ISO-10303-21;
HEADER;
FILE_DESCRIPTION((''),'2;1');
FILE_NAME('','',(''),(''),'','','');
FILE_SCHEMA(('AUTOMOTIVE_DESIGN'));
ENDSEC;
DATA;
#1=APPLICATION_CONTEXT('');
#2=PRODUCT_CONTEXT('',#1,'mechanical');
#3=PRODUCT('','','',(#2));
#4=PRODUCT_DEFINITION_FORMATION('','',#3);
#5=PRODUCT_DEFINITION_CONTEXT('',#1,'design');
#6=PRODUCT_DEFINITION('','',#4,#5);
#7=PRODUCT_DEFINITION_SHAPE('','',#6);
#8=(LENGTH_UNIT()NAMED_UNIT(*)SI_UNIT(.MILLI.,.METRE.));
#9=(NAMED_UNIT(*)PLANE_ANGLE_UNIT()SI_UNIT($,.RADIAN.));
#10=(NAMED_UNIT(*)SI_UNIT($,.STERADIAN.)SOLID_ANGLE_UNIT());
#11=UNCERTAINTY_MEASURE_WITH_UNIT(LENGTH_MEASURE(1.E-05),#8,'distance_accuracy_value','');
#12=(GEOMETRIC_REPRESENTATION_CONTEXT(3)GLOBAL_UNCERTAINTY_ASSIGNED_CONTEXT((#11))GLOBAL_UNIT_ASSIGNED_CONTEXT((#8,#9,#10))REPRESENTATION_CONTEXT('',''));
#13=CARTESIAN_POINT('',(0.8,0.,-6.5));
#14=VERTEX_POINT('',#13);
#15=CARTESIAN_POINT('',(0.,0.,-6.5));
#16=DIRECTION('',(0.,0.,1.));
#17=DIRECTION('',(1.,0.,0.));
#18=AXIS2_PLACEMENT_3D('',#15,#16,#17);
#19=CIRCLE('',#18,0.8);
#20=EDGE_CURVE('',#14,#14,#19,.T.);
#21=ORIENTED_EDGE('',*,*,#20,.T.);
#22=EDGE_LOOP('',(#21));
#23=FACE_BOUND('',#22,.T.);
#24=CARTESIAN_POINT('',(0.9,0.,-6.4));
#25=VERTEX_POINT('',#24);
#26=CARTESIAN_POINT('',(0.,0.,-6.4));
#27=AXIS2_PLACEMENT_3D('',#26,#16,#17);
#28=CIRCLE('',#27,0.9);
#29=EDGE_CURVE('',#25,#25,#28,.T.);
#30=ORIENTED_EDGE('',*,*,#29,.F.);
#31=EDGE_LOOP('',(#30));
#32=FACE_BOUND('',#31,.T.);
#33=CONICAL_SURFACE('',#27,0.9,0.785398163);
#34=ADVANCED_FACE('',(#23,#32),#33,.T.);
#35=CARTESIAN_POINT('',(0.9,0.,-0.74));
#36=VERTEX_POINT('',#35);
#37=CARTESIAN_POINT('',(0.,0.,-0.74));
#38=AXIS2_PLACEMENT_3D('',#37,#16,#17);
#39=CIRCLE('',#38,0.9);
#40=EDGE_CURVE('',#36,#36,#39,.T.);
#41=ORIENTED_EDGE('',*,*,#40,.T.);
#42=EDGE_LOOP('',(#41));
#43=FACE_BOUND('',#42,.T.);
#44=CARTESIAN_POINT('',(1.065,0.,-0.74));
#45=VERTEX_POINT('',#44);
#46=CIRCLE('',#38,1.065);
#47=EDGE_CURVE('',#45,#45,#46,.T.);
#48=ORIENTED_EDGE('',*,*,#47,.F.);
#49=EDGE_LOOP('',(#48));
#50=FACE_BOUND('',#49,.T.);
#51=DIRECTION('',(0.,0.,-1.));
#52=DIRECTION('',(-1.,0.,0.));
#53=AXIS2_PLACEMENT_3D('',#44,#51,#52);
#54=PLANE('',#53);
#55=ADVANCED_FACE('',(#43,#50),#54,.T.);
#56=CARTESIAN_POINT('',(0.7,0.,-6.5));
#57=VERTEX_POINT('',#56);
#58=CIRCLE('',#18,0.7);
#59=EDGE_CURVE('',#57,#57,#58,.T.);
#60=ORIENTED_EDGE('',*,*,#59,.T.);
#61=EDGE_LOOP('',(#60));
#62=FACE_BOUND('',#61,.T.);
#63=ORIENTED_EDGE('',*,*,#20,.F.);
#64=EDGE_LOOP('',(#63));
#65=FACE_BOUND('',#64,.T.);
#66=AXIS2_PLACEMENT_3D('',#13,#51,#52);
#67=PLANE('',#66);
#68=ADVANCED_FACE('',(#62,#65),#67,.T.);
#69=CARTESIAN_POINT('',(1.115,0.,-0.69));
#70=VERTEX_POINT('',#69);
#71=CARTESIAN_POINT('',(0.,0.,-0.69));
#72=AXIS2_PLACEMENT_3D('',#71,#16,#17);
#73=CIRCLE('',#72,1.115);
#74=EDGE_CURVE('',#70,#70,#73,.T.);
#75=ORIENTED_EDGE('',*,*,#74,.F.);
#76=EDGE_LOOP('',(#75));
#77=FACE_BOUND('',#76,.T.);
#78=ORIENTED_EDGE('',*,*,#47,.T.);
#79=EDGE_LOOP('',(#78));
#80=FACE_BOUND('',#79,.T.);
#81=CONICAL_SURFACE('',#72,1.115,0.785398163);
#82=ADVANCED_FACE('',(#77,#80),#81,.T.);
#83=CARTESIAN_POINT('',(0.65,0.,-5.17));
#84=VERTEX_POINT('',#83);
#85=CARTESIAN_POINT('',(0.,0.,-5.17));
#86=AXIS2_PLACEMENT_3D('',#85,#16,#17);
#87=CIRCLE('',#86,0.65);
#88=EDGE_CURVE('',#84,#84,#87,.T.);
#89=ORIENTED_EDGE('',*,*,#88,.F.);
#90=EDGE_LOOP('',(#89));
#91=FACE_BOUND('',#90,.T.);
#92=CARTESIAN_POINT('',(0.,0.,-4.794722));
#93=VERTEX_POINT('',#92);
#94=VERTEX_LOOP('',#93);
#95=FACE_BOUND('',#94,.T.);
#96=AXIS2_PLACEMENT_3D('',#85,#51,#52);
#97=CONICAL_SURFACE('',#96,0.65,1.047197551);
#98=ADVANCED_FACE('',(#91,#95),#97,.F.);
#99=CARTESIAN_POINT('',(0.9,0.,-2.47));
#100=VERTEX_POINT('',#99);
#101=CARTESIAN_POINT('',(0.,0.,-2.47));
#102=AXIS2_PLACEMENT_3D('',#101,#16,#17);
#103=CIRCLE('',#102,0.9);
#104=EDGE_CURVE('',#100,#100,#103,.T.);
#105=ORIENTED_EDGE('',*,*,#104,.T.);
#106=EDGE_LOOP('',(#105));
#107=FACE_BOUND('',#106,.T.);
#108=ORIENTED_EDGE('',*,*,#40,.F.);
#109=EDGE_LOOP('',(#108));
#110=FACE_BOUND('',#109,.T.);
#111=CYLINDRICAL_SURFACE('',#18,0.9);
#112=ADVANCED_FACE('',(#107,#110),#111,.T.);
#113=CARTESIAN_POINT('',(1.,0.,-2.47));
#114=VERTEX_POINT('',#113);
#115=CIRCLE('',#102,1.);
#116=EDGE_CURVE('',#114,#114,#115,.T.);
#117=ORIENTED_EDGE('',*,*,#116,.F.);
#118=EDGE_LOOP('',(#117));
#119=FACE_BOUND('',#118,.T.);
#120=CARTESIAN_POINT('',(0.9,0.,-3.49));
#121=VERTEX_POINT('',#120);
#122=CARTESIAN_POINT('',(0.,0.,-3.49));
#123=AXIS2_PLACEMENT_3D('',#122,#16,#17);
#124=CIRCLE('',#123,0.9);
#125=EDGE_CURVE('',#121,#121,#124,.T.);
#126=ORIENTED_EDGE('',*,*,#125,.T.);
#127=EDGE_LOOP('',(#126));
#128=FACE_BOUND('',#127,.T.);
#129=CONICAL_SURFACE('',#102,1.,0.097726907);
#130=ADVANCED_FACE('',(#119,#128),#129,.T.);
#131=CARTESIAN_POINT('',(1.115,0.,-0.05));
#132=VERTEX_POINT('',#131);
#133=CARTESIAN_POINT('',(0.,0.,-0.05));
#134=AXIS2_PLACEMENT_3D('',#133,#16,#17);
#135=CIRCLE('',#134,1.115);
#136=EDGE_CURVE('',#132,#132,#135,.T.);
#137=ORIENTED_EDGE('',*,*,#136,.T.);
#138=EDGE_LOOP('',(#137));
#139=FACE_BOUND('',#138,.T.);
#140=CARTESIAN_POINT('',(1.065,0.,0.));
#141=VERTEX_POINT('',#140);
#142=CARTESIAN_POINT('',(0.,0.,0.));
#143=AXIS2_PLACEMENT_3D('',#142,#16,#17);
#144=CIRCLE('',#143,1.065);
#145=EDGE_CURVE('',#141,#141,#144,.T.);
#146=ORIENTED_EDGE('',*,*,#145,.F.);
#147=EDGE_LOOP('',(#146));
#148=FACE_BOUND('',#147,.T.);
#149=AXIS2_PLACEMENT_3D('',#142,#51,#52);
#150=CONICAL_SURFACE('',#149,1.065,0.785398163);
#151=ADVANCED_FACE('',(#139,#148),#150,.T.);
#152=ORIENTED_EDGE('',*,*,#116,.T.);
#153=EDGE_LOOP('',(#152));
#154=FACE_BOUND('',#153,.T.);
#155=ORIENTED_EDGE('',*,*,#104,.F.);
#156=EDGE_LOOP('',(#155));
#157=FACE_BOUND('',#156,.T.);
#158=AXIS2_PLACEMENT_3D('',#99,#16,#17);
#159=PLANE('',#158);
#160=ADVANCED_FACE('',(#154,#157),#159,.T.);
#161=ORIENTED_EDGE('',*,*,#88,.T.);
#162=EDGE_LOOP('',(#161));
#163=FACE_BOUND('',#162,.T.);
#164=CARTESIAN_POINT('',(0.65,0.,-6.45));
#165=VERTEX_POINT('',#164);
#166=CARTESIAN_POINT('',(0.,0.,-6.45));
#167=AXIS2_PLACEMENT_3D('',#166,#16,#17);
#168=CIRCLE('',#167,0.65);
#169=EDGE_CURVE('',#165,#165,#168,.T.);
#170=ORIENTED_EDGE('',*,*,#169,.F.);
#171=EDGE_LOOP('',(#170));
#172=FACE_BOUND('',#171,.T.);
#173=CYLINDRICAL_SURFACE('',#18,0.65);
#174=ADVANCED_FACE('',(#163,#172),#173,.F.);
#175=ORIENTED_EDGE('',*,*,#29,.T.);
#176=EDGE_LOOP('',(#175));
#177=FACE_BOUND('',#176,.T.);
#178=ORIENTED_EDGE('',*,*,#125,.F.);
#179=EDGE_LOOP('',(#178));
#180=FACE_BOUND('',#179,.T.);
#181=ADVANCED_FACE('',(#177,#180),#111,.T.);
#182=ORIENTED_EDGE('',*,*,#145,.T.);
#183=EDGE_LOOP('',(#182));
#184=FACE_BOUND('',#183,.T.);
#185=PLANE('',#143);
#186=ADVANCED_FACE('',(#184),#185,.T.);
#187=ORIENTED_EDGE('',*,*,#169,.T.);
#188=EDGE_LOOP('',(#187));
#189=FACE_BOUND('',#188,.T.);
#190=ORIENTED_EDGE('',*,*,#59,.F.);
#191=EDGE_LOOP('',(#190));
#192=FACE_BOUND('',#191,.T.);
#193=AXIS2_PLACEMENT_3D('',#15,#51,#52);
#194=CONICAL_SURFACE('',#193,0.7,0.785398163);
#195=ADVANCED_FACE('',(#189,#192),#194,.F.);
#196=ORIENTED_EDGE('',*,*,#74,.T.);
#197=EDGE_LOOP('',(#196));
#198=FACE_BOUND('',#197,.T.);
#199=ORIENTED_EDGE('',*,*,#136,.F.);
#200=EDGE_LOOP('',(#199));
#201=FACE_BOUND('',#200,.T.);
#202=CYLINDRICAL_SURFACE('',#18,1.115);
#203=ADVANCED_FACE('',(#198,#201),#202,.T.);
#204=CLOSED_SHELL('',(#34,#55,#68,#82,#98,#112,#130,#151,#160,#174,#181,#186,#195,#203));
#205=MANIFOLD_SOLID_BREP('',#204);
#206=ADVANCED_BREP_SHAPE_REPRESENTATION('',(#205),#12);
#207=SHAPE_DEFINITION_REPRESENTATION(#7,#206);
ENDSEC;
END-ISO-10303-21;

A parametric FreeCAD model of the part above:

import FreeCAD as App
import Part
import Sketcher
from FreeCAD import Vector
Q = App.Units.Quantity

doc = App.newDocument("Part")
params = doc.addObject("Spreadsheet::Sheet", "Params")
for row, (alias, value) in enumerate([
    ("sketch1_width", "0.1 mm"),
    ("sketch1_height", "0.64 mm"),
    ("sketch1_height2", "1.73 mm"),
    ("sketch1_height3", "2.91 mm"),
    ("sketch1_height4", "1.28 mm"),
    ("revolution_angle", "360 deg"),
], start=1):
    params.set(f"A{row}", alias)
    params.set(f"B{row}", "=" + value)
    params.setAlias(f"B{row}", alias)

body = doc.addObject("PartDesign::Body", "Body")

sketch1 = body.newObject("Sketcher::SketchObject", "Sketch")
sketch1.AttachmentSupport = (doc.getObject("XZ_Plane"), [""])
sketch1.MapMode = "FlatFace"
sketch1.addGeometry(Part.LineSegment(Vector(0.65, -5.17, 0), Vector(0, -4.79, 0)), False)
sketch1.addGeometry(Part.LineSegment(Vector(0, -4.79, 0), Vector(0, 0, 0)), False)
sketch1.addGeometry(Part.LineSegment(Vector(0, 0, 0), Vector(1.06, 0, 0)), False)
sketch1.addGeometry(Part.LineSegment(Vector(1.06, 0, 0), Vector(1.11, -0.05, 0)), False)
sketch1.addGeometry(Part.LineSegment(Vector(1.11, -0.05, 0), Vector(1.11, -0.69, 0)), False)
sketch1.addGeometry(Part.LineSegment(Vector(1.11, -0.69, 0), Vector(1.06, -0.74, 0)), False)
sketch1.addGeometry(Part.LineSegment(Vector(1.06, -0.74, 0), Vector(0.9, -0.74, 0)), False)
sketch1.addGeometry(Part.LineSegment(Vector(0.9, -0.74, 0), Vector(0.9, -2.47, 0)), False)
sketch1.addGeometry(Part.LineSegment(Vector(0.9, -2.47, 0), Vector(1, -2.47, 0)), False)
sketch1.addGeometry(Part.LineSegment(Vector(1, -2.47, 0), Vector(0.9, -3.49, 0)), False)
sketch1.addGeometry(Part.LineSegment(Vector(0.9, -3.49, 0), Vector(0.9, -6.4, 0)), False)
sketch1.addGeometry(Part.LineSegment(Vector(0.9, -6.4, 0), Vector(0.8, -6.5, 0)), False)
sketch1.addGeometry(Part.LineSegment(Vector(0.8, -6.5, 0), Vector(0.7, -6.5, 0)), False)
sketch1.addGeometry(Part.LineSegment(Vector(0.7, -6.5, 0), Vector(0.65, -6.45, 0)), False)
sketch1.addGeometry(Part.LineSegment(Vector(0.65, -6.45, 0), Vector(0.65, -5.17, 0)), False)
sketch1.addConstraint(Sketcher.Constraint("Coincident", 0, 2, 1, 1))
sketch1.addConstraint(Sketcher.Constraint("Coincident", 1, 2, 2, 1))
sketch1.addConstraint(Sketcher.Constraint("Coincident", 2, 2, 3, 1))
sketch1.addConstraint(Sketcher.Constraint("Coincident", 3, 2, 4, 1))
sketch1.addConstraint(Sketcher.Constraint("Coincident", 4, 2, 5, 1))
sketch1.addConstraint(Sketcher.Constraint("Coincident", 5, 2, 6, 1))
sketch1.addConstraint(Sketcher.Constraint("Coincident", 6, 2, 7, 1))
sketch1.addConstraint(Sketcher.Constraint("Coincident", 7, 2, 8, 1))
sketch1.addConstraint(Sketcher.Constraint("Coincident", 8, 2, 9, 1))
sketch1.addConstraint(Sketcher.Constraint("Coincident", 9, 2, 10, 1))
sketch1.addConstraint(Sketcher.Constraint("Coincident", 10, 2, 11, 1))
sketch1.addConstraint(Sketcher.Constraint("Coincident", 11, 2, 12, 1))
sketch1.addConstraint(Sketcher.Constraint("Coincident", 12, 2, 13, 1))
sketch1.addConstraint(Sketcher.Constraint("Coincident", 13, 2, 14, 1))
sketch1.addConstraint(Sketcher.Constraint("Coincident", 14, 2, 0, 1))
sketch1.addConstraint(Sketcher.Constraint("Vertical", 1))
sketch1.addConstraint(Sketcher.Constraint("Horizontal", 2))
sketch1.addConstraint(Sketcher.Constraint("Vertical", 4))
sketch1.addConstraint(Sketcher.Constraint("Horizontal", 6))
sketch1.addConstraint(Sketcher.Constraint("Vertical", 7))
sketch1.addConstraint(Sketcher.Constraint("Horizontal", 8))
sketch1.addConstraint(Sketcher.Constraint("Vertical", 10))
sketch1.addConstraint(Sketcher.Constraint("Horizontal", 12))
sketch1.addConstraint(Sketcher.Constraint("Vertical", 14))
sketch1.addConstraint(Sketcher.Constraint("Coincident", 1, 2, -1, 1))
sketch1.addConstraint(Sketcher.Constraint("Perpendicular", 3, 5))
sketch1.addConstraint(Sketcher.Constraint("Parallel", 5, 11))
sketch1.addConstraint(Sketcher.Constraint("Perpendicular", 11, 13))
sketch1.addConstraint(Sketcher.Constraint("Vertical", 2, 2, 5, 2))
sketch1.addConstraint(Sketcher.Constraint("Vertical", 7, 2, 9, 2))
sketch1.addConstraint(Sketcher.Constraint("Equal", 8, 12))
sketch1.addConstraint(Sketcher.Constraint("Equal", 3, 5))
sketch1.addConstraint(Sketcher.Constraint("Equal", 5, 13))
sketch1.addConstraint(Sketcher.Constraint("Angle", 0, Q("150 deg")))
sketch1.addConstraint(Sketcher.Constraint("DistanceX", 8, 1, 8, 2, 0.1))
sketch1.addConstraint(Sketcher.Constraint("DistanceX", -1, 1, 8, 2, 1.0))
sketch1.addConstraint(Sketcher.Constraint("DistanceY", 4, 2, 4, 1, 0.64))
sketch1.addConstraint(Sketcher.Constraint("DistanceY", 7, 2, 7, 1, 1.73))
sketch1.addConstraint(Sketcher.Constraint("DistanceY", 10, 2, 10, 1, 2.91))
sketch1.addConstraint(Sketcher.Constraint("DistanceY", 14, 1, 14, 2, 1.28))
sketch1.addConstraint(Sketcher.Constraint("DistanceY", 10, 2, -1, 1, 6.4))
sketch1.addConstraint(Sketcher.Constraint("DistanceX", -1, 1, 11, 2, 0.8))
sketch1.addConstraint(Sketcher.Constraint("DistanceX", 2, 1, 2, 2, 1.065))
sketch1.addConstraint(Sketcher.Constraint("DistanceY", 3, 2, -1, 1, 0.05))
sketch1.setExpression("Constraints[34]", "Params.sketch1_width")
sketch1.setExpression("Constraints[36]", "Params.sketch1_height")
sketch1.setExpression("Constraints[37]", "Params.sketch1_height2")
sketch1.setExpression("Constraints[38]", "Params.sketch1_height3")
sketch1.setExpression("Constraints[39]", "Params.sketch1_height4")
revolution = body.newObject("PartDesign::Revolution", "Revolution")
revolution.Profile = sketch1
revolution.ReferenceAxis = (sketch1, ["V_Axis"])
revolution.setExpression("Angle", "Params.revolution_angle")

doc.recompute()
